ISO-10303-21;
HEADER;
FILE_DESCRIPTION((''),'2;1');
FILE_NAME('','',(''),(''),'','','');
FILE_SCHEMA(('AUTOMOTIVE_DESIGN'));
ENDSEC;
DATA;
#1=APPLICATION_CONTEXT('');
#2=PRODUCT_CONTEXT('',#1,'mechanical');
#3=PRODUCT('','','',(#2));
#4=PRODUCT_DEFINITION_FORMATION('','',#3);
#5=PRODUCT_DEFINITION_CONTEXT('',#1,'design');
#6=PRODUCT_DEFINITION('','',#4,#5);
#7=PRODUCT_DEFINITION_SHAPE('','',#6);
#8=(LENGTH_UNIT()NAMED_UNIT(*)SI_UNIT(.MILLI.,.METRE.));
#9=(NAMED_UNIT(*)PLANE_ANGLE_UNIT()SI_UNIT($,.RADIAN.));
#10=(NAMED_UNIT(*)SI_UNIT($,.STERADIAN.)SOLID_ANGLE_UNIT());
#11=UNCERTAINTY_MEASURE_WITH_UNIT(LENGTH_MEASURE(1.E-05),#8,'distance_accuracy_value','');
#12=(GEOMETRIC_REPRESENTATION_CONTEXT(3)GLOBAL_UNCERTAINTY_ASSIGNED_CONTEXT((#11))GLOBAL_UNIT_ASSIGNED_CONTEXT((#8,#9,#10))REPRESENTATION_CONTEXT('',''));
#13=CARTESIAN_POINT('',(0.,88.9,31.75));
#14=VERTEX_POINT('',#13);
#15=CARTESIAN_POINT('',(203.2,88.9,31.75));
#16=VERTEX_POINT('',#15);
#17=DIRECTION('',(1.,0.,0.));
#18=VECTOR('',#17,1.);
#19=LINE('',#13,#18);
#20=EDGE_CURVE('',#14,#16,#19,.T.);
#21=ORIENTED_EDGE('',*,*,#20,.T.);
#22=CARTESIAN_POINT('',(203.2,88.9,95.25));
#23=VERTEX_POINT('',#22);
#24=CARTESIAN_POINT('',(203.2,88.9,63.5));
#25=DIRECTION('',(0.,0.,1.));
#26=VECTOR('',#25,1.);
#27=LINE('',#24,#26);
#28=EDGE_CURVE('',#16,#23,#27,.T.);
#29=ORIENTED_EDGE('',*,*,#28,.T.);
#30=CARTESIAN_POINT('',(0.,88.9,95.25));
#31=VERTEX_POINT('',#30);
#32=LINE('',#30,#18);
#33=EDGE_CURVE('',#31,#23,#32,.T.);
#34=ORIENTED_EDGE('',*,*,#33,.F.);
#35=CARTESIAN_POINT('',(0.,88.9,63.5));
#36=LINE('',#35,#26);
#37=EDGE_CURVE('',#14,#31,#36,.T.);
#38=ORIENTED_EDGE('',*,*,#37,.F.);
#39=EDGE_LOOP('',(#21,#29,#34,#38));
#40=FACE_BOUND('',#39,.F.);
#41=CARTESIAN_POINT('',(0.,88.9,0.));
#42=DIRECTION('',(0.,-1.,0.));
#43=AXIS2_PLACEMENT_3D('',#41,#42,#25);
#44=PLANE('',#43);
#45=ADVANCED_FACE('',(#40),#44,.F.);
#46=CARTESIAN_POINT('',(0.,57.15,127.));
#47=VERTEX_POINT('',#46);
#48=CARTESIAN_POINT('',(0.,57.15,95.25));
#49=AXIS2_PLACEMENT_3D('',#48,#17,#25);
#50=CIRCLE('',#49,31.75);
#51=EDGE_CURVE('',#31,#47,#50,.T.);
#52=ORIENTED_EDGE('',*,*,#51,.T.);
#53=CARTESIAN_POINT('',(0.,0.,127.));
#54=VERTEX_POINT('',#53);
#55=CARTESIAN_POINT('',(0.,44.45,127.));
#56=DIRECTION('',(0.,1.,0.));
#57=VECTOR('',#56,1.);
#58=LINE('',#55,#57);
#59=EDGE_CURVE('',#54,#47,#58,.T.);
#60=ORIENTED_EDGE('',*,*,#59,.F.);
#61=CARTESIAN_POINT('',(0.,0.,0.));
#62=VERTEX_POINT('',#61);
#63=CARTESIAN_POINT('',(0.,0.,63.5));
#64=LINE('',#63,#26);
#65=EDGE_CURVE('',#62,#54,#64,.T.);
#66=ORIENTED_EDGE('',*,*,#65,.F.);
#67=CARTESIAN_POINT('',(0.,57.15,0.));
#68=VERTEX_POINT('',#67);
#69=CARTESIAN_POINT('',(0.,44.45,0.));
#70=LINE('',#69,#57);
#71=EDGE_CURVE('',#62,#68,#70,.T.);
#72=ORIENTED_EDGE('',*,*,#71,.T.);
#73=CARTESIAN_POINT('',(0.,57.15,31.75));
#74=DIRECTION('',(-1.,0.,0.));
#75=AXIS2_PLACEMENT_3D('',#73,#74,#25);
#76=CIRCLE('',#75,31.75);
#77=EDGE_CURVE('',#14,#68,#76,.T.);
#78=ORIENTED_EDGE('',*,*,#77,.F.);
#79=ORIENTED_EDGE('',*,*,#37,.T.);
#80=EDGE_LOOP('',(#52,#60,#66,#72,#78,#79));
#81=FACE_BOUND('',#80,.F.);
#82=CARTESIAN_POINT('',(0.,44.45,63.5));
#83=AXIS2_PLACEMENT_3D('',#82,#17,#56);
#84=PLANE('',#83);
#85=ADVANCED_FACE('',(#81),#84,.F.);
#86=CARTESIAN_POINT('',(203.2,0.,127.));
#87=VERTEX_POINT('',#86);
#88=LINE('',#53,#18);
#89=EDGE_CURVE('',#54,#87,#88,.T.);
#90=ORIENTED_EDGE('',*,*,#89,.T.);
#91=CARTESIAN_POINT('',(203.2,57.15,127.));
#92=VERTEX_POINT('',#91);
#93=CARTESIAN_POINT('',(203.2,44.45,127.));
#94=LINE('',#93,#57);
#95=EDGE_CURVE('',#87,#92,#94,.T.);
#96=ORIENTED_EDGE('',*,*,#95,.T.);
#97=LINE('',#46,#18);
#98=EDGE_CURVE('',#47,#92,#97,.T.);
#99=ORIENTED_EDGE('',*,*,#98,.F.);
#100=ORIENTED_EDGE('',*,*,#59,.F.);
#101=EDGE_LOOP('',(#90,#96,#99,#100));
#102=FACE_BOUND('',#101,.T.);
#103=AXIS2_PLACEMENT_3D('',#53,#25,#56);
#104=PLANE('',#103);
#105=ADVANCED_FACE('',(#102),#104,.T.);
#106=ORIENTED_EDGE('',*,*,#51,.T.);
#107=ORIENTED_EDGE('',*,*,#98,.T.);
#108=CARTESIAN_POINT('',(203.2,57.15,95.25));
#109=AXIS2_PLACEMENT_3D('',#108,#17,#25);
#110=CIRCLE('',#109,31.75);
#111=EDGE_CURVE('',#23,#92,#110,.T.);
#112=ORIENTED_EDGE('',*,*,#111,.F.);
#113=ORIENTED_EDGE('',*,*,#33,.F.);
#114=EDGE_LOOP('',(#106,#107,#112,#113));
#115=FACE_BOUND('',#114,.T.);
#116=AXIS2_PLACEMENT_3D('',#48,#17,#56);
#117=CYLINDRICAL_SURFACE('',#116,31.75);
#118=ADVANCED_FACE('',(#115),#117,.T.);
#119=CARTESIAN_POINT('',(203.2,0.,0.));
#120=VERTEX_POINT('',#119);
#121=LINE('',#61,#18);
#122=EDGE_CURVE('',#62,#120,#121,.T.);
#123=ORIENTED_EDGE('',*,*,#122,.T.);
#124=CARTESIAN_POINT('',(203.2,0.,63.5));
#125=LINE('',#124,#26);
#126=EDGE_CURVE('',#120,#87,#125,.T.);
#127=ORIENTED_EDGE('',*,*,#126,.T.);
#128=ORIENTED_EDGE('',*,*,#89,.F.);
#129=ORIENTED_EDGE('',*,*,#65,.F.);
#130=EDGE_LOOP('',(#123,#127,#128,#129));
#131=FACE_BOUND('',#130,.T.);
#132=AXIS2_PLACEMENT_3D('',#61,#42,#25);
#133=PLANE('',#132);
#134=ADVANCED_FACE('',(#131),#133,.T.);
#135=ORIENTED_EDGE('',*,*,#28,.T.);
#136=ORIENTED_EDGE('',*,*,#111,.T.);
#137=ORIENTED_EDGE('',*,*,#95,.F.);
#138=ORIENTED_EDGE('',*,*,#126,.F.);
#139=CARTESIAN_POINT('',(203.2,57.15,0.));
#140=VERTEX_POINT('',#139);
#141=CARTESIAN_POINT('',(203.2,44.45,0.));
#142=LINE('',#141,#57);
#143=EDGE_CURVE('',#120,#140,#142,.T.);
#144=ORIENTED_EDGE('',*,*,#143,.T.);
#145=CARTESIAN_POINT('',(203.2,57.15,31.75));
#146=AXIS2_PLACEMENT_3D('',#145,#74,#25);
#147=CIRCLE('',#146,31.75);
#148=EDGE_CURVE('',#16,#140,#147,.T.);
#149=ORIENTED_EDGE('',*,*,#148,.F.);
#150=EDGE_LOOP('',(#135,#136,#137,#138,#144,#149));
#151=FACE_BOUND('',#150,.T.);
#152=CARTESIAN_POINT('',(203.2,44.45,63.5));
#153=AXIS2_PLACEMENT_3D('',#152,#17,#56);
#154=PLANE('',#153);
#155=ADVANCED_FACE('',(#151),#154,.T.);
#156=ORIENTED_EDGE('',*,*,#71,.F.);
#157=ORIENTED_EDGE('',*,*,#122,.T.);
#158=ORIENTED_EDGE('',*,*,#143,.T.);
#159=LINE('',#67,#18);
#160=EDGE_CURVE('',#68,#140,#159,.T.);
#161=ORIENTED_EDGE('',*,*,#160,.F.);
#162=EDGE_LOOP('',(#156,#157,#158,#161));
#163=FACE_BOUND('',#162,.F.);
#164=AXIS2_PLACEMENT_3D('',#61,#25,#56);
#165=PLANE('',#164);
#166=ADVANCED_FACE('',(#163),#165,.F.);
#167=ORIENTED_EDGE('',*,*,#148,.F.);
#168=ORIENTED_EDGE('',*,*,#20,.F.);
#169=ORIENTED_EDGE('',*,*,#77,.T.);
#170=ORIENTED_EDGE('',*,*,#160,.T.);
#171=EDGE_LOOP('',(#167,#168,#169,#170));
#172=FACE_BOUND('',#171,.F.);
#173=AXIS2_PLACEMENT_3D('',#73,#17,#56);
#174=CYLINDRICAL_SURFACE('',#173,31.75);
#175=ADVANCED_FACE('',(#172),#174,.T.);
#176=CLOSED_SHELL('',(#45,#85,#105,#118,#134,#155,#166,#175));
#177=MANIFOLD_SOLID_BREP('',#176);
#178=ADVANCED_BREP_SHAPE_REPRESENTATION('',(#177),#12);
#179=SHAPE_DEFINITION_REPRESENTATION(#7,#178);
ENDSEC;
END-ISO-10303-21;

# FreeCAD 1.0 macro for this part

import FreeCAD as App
import Part
import Sketcher
from FreeCAD import Vector
Q = App.Units.Quantity


def edges_at(feature, points):
    """Names of the edges that pass closest to the given points."""
    edges = feature.Shape.Edges
    near = lambda p: min(range(len(edges)), key=lambda i: edges[i].distToShape(Part.Vertex(*p))[0])
    return sorted({f"Edge{near(p) + 1}" for p in points})

doc = App.newDocument("Part")
body = doc.addObject("PartDesign::Body", "Body")

# Sketch on YZ plane
sketch1 = body.newObject("Sketcher::SketchObject", "Sketch")
sketch1.AttachmentSupport = (doc.getObject("YZ_Plane"), [""])
sketch1.MapMode = "FlatFace"
sketch1.addGeometry([
    Part.LineSegment(Vector(0, 127, 0), Vector(0, 0, 0)),
    Part.LineSegment(Vector(0, 0, 0), Vector(89, 0, 0)),
    Part.LineSegment(Vector(89, 0, 0), Vector(89, 127, 0)),
    Part.LineSegment(Vector(89, 127, 0), Vector(0, 127, 0)),
], False)
sketch1.addConstraint([
    Sketcher.Constraint("Coincident", 0, 2, 1, 1),
    Sketcher.Constraint("Coincident", 1, 2, 2, 1),
    Sketcher.Constraint("Coincident", 2, 2, 3, 1),
    Sketcher.Constraint("Coincident", 3, 2, 0, 1),
    Sketcher.Constraint("Vertical", 0),
    Sketcher.Constraint("Horizontal", 1),
    Sketcher.Constraint("Vertical", 2),
    Sketcher.Constraint("Horizontal", 3),
    Sketcher.Constraint("Coincident", 0, 2, -1, 1),
    Sketcher.Constraint("DistanceY", 0, 2, 0, 1, Q("5 in")),
    Sketcher.Constraint("DistanceX", 1, 1, 1, 2, Q("3.5 in")),
])
pad1 = body.newObject("PartDesign::Pad", "Pad")
pad1.Profile = sketch1
pad1.Length = Q("8 in")
doc.recompute()

fillet = body.newObject("PartDesign::Fillet", "Fillet")
fillet.Base = (pad1, edges_at(pad1, [(101.6, 88.9, 127)]))
fillet.Radius = Q("1.25 in")
doc.recompute()

fillet2 = body.newObject("PartDesign::Fillet", "Fillet001")
fillet2.Base = (fillet, edges_at(fillet, [(101.6, 88.9, 0)]))
fillet2.Radius = Q("1.25 in")

doc.recompute()
